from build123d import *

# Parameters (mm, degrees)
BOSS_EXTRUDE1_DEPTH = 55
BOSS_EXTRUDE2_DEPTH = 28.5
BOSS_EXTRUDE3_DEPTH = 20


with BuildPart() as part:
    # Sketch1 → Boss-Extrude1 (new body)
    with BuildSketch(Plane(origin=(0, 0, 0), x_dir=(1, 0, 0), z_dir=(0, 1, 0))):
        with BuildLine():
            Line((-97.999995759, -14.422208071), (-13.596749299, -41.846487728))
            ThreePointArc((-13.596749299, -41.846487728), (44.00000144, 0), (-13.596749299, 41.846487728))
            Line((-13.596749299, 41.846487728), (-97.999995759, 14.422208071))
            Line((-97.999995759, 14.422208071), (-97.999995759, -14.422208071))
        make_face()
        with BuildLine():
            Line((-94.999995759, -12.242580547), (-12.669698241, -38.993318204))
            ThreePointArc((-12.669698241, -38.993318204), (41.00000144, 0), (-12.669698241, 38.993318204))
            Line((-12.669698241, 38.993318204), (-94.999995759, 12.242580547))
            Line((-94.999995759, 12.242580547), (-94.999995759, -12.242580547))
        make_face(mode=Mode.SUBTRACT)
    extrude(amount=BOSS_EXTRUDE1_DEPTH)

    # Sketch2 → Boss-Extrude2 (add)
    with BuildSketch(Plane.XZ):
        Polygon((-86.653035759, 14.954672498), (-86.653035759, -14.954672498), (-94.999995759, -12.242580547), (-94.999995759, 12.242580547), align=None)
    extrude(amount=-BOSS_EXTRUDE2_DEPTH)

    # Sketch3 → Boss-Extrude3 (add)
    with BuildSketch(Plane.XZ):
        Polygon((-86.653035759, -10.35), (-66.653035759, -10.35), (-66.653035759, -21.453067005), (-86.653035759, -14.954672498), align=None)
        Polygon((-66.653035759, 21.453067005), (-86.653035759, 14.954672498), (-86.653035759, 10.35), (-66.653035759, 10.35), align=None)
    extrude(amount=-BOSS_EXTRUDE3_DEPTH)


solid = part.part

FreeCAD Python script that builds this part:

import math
import FreeCAD as App
import Part
import Sketcher

V = App.Vector
Q = App.Units.Quantity

doc = App.newDocument("Part")
params = doc.addObject("Spreadsheet::Sheet", "Params")
for row, (alias, value) in enumerate([
    ("sketch1_radius", "44.000001 mm"),
    ("sketch1_radius2", "41.000001 mm"),
    ("pad1_length", "55 mm"),
    ("pad2_length", "28.5 mm"),
    ("sketch3_width", "20 mm"),
    ("pad3_length", "20 mm"),
], start=1):
    params.set(f"A{row}", alias)
    params.set(f"B{row}", "=" + value)
    params.setAlias(f"B{row}", alias)

body = doc.addObject("PartDesign::Body", "Body")

# Sketch on XZ plane
sketch1 = body.newObject("Sketcher::SketchObject", "Sketch")
sketch1.AttachmentSupport = (doc.getObject("XZ_Plane"), [""])
sketch1.MapMode = "FlatFace"
sketch1.addGeometry(Part.LineSegment(V(-98, 14, 0), V(-14, 42, 0)), False)
sketch1.addGeometry(Part.ArcOfCircle(Part.Circle(V(0, 0, 0), V(0, 0, 1), 44), math.radians(-108), math.radians(108)), False)
sketch1.addGeometry(Part.LineSegment(V(-14, -42, 0), V(-98, -14, 0)), False)
sketch1.addGeometry(Part.LineSegment(V(-98, -14, 0), V(-98, 14, 0)), False)
sketch1.addGeometry(Part.LineSegment(V(-13, 39, 0), V(-95, 12, 0)), False)
sketch1.addGeometry(Part.LineSegment(V(-95, 12, 0), V(-95, -12, 0)), False)
sketch1.addGeometry(Part.LineSegment(V(-95, -12, 0), V(-13, -39, 0)), False)
sketch1.addGeometry(Part.ArcOfCircle(Part.Circle(V(0, 0, 0), V(0, 0, 1), 41), math.radians(-108), math.radians(108)), False)
sketch1.addConstraint(Sketcher.Constraint("Tangent", 0, 2, 1, 2))
sketch1.addConstraint(Sketcher.Constraint("Tangent", 1, 1, 2, 1))
sketch1.addConstraint(Sketcher.Constraint("Coincident", 2, 2, 3, 1))
sketch1.addConstraint(Sketcher.Constraint("Coincident", 3, 2, 0, 1))
sketch1.addConstraint(Sketcher.Constraint("Coincident", 4, 2, 5, 1))
sketch1.addConstraint(Sketcher.Constraint("Coincident", 5, 2, 6, 1))
sketch1.addConstraint(Sketcher.Constraint("Tangent", 6, 2, 7, 1))
sketch1.addConstraint(Sketcher.Constraint("Tangent", 7, 2, 4, 1))
sketch1.addConstraint(Sketcher.Constraint("Vertical", 3))
sketch1.addConstraint(Sketcher.Constraint("Vertical", 5))
sketch1.addConstraint(Sketcher.Constraint("Coincident", 1, 3, -1, 1))
sketch1.addConstraint(Sketcher.Constraint("Coincident", 7, 3, -1, 1))
sketch1.addConstraint(Sketcher.Constraint("Parallel", 0, 4))
sketch1.addConstraint(Sketcher.Constraint("Parallel", 2, 6))
sketch1.addConstraint(Sketcher.Constraint("Vertical", 0, 2, 1, 1))
sketch1.addConstraint(Sketcher.Constraint("Radius", 1, Q("44.000001 mm")))
sketch1.addConstraint(Sketcher.Constraint("Radius", 7, Q("41.000001 mm")))
sketch1.addConstraint(Sketcher.Constraint("Angle", 0, Q("18.000002 deg")))
sketch1.addConstraint(Sketcher.Constraint("DistanceX", 3, 2, 4, 2, Q("3 mm")))
sketch1.addConstraint(Sketcher.Constraint("Distance", 4, Q("86.567198 mm")))
sketch1.setExpression("Constraints[15]", "Params.sketch1_radius")
sketch1.setExpression("Constraints[16]", "Params.sketch1_radius2")
pad1 = body.newObject("PartDesign::Pad", "Pad")
pad1.Profile = sketch1
pad1.setExpression("Length", "Params.pad1_length")
pad1.Reversed = True

# Sketch on XZ plane
sketch2 = body.newObject("Sketcher::SketchObject", "Sketch001")
sketch2.AttachmentSupport = (doc.getObject("XZ_Plane"), [""])
sketch2.MapMode = "FlatFace"
sketch2.addGeometry(Part.LineSegment(V(-87, -15, 0), V(-87, 15, 0)), False)
sketch2.addGeometry(Part.LineSegment(V(-87, 15, 0), V(-95, 12, 0)), False)
sketch2.addGeometry(Part.LineSegment(V(-95, 12, 0), V(-95, -12, 0)), False)
sketch2.addGeometry(Part.LineSegment(V(-95, -12, 0), V(-87, -15, 0)), False)
sketch2.addConstraint(Sketcher.Constraint("Coincident", 0, 2, 1, 1))
sketch2.addConstraint(Sketcher.Constraint("Coincident", 1, 2, 2, 1))
sketch2.addConstraint(Sketcher.Constraint("Coincident", 2, 2, 3, 1))
sketch2.addConstraint(Sketcher.Constraint("Coincident", 3, 2, 0, 1))
sketch2.addConstraint(Sketcher.Constraint("Vertical", 0))
sketch2.addConstraint(Sketcher.Constraint("Vertical", 2))
sketch2.addConstraint(Sketcher.Constraint("Equal", 1, 3))
sketch2.addConstraint(Sketcher.Constraint("Angle", 1, Q("-161.999998 deg")))
sketch2.addConstraint(Sketcher.Constraint("DistanceY", 2, 2, 2, 1, Q("24.485161 mm")))
sketch2.addConstraint(Sketcher.Constraint("DistanceY", 0, 1, 0, 2, Q("29.909345 mm")))
sketch2.addConstraint(Sketcher.Constraint("DistanceY", -1, 1, 1, 2, Q("12.242581 mm")))
sketch2.addConstraint(Sketcher.Constraint("DistanceX", 0, 2, -1, 1, Q("86.653036 mm")))
pad2 = body.newObject("PartDesign::Pad", "Pad001")
pad2.Profile = sketch2
pad2.setExpression("Length", "Params.pad2_length")
pad2.Reversed = True

# Sketch on XZ plane
sketch3 = body.newObject("Sketcher::SketchObject", "Sketch002")
sketch3.AttachmentSupport = (doc.getObject("XZ_Plane"), [""])
sketch3.MapMode = "FlatFace"
sketch3.addGeometry(Part.LineSegment(V(-66.7, -10.3, 0), V(-86.7, -10.3, 0)), False)
sketch3.addGeometry(Part.LineSegment(V(-86.7, -10.3, 0), V(-86.7, -15, 0)), False)
sketch3.addGeometry(Part.LineSegment(V(-86.7, -15, 0), V(-66.7, -21.5, 0)), False)
sketch3.addGeometry(Part.LineSegment(V(-66.7, -21.5, 0), V(-66.7, -10.3, 0)), False)
sketch3.addGeometry(Part.LineSegment(V(-66.7, 21.5, 0), V(-86.7, 15, 0)), False)
sketch3.addGeometry(Part.LineSegment(V(-86.7, 15, 0), V(-86.7, 10.3, 0)), False)
sketch3.addGeometry(Part.LineSegment(V(-86.7, 10.3, 0), V(-66.7, 10.3, 0)), False)
sketch3.addGeometry(Part.LineSegment(V(-66.7, 10.3, 0), V(-66.7, 21.5, 0)), False)
sketch3.addConstraint(Sketcher.Constraint("Coincident", 0, 2, 1, 1))
sketch3.addConstraint(Sketcher.Constraint("Coincident", 1, 2, 2, 1))
sketch3.addConstraint(Sketcher.Constraint("Coincident", 2, 2, 3, 1))
sketch3.addConstraint(Sketcher.Constraint("Coincident", 3, 2, 0, 1))
sketch3.addConstraint(Sketcher.Constraint("Coincident", 4, 2, 5, 1))
sketch3.addConstraint(Sketcher.Constraint("Coincident", 5, 2, 6, 1))
sketch3.addConstraint(Sketcher.Constraint("Coincident", 6, 2, 7, 1))
sketch3.addConstraint(Sketcher.Constraint("Coincident", 7, 2, 4, 1))
sketch3.addConstraint(Sketcher.Constraint("Horizontal", 0))
sketch3.addConstraint(Sketcher.Constraint("Vertical", 1))
sketch3.addConstraint(Sketcher.Constraint("Vertical", 3))
sketch3.addConstraint(Sketcher.Constraint("Vertical", 5))
sketch3.addConstraint(Sketcher.Constraint("Horizontal", 6))
sketch3.addConstraint(Sketcher.Constraint("Vertical", 7))
sketch3.addConstraint(Sketcher.Constraint("Symmetric", 1, 2, 4, 2, -1))
sketch3.addConstraint(Sketcher.Constraint("Symmetric", 3, 2, 6, 2, -1))
sketch3.addConstraint(Sketcher.Constraint("Equal", 3, 7))
sketch3.addConstraint(Sketcher.Constraint("DistanceX", 0, 2, 0, 1, Q("20 mm")))
sketch3.addConstraint(Sketcher.Constraint("Angle", 2, Q("-18.000002 deg")))
sketch3.addConstraint(Sketcher.Constraint("DistanceY", 0, 2, 5, 2, Q("20.7 mm")))
sketch3.addConstraint(Sketcher.Constraint("DistanceY", 1, 2, 1, 1, Q("4.604672 mm")))
sketch3.addConstraint(Sketcher.Constraint("DistanceX", 0, 2, -1, 1, Q("86.653036 mm")))
sketch3.setExpression("Constraints[17]", "Params.sketch3_width")
pad3 = body.newObject("PartDesign::Pad", "Pad002")
pad3.Profile = sketch3
pad3.setExpression("Length", "Params.pad3_length")
pad3.Reversed = True

doc.recompute()
